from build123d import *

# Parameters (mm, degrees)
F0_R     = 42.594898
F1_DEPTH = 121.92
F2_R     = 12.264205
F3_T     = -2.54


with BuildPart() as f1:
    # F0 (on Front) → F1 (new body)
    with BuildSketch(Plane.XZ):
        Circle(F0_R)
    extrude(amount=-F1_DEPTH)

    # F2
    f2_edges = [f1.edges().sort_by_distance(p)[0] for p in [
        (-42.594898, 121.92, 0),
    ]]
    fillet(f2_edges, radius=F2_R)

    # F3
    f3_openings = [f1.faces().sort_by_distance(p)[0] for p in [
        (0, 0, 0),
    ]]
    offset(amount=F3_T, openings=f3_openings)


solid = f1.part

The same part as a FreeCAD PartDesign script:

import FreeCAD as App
import Part
import Sketcher
from FreeCAD import Vector
Q = App.Units.Quantity


def edges_at(feature, points):
    """Names of the edges that pass closest to the given points."""
    edges = feature.Shape.Edges
    near = lambda p: min(range(len(edges)), key=lambda i: edges[i].distToShape(Part.Vertex(*p))[0])
    return sorted({f"Edge{near(p) + 1}" for p in points})


def faces_at(feature, points):
    """Names of the faces that lie closest to the given points."""
    faces = feature.Shape.Faces
    near = lambda p: min(range(len(faces)), key=lambda i: faces[i].distToShape(Part.Vertex(*p))[0])
    return sorted({f"Face{near(p) + 1}" for p in points})

doc = App.newDocument("Part")
body = doc.addObject("PartDesign::Body", "Body")

sketch1 = body.newObject("Sketcher::SketchObject", "Sketch")
sketch1.AttachmentSupport = (doc.getObject("XZ_Plane"), [""])
sketch1.MapMode = "FlatFace"
sketch1.addGeometry(Part.Circle(Vector(0, 0, 0), Vector(0, 0, 1), 42.594898), False)
sketch1.addConstraint([
    Sketcher.Constraint("Coincident", 0, 3, -1, 1),
    Sketcher.Constraint("Diameter", 0, Q("85.189796 mm")),
])
pad1 = body.newObject("PartDesign::Pad", "Pad")
pad1.Profile = sketch1
pad1.Length = Q("4.8 in")
pad1.Reversed = True
doc.recompute()

fillet = body.newObject("PartDesign::Fillet", "Fillet")
fillet.Base = (pad1, edges_at(pad1, [(-42.595, 121.92, 0)]))
fillet.Radius = 12.264205
doc.recompute()

thickness = body.newObject("PartDesign::Thickness", "Thickness")
thickness.Base = (fillet, faces_at(fillet, [(0, 0, 0)]))
thickness.Value = Q("0.1 in")
thickness.Reversed = True
thickness.Join = "Arc"

doc.recompute()
